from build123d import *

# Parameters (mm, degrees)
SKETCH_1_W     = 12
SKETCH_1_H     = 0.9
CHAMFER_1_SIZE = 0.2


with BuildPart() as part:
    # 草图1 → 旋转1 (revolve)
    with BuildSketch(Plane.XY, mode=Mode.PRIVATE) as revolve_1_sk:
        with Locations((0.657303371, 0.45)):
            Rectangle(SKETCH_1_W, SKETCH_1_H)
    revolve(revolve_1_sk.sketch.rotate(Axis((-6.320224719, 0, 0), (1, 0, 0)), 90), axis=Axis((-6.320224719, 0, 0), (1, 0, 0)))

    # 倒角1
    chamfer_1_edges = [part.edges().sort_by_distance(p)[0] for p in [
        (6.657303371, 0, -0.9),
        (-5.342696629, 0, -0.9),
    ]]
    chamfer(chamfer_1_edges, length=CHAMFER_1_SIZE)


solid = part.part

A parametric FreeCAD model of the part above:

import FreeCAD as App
import Part
import Sketcher

V = App.Vector
Q = App.Units.Quantity


def edges_at(feature, points):
    """Names of the edges that pass closest to the given points."""
    edges = feature.Shape.Edges
    near = lambda p: min(range(len(edges)), key=lambda i: edges[i].distToShape(Part.Vertex(*p))[0])
    return sorted({f"Edge{near(p) + 1}" for p in points})

doc = App.newDocument("Part")
body = doc.addObject("PartDesign::Body", "Body")

# Sketch on XY plane
sketch1 = doc.addObject("Sketcher::SketchObject", "Sketch")
body.addObject(sketch1)
sketch1.AttachmentSupport = (doc.XY_Plane, [""])
sketch1.MapMode = "FlatFace"
sketch1.addGeometry(Part.LineSegment(V(-5.342697, 0.9, 0), V(-5.342697, 0, 0)), False)
sketch1.addGeometry(Part.LineSegment(V(-5.342697, 0, 0), V(6.657303, 0, 0)), False)
sketch1.addGeometry(Part.LineSegment(V(6.657303, 0, 0), V(6.657303, 0.9, 0)), False)
sketch1.addGeometry(Part.LineSegment(V(6.657303, 0.9, 0), V(-5.342697, 0.9, 0)), False)
sketch1.addConstraint(Sketcher.Constraint("Coincident", 0, 2, 1, 1))
sketch1.addConstraint(Sketcher.Constraint("Coincident", 1, 2, 2, 1))
sketch1.addConstraint(Sketcher.Constraint("Coincident", 2, 2, 3, 1))
sketch1.addConstraint(Sketcher.Constraint("Coincident", 3, 2, 0, 1))
sketch1.addConstraint(Sketcher.Constraint("Vertical", 0))
sketch1.addConstraint(Sketcher.Constraint("Horizontal", 1))
sketch1.addConstraint(Sketcher.Constraint("Vertical", 2))
sketch1.addConstraint(Sketcher.Constraint("Horizontal", 3))
sketch1.addConstraint(Sketcher.Constraint("PointOnObject", 0, 2, -1))
sketch1.addConstraint(Sketcher.Constraint("DistanceX", 1, 1, 1, 2, Q("12 mm")))
sketch1.addConstraint(Sketcher.Constraint("DistanceY", 0, 2, 0, 1, Q("0.9 mm")))
sketch1.addConstraint(Sketcher.Constraint("DistanceX", 0, 2, -1, 1, Q("5.342697 mm")))
revolution = doc.addObject("PartDesign::Revolution", "Revolution")
body.addObject(revolution)
revolution.Profile = sketch1
revolution.ReferenceAxis = (sketch1, ["H_Axis"])
revolution.Angle = 360
doc.recompute()

chamfer = doc.addObject("PartDesign::Chamfer", "Chamfer")
body.addObject(chamfer)
chamfer.Base = (revolution, edges_at(revolution, [(6.657, 0, -0.9), (-5.343, 0, -0.9)]))
chamfer.Size = 0.2

doc.recompute()
